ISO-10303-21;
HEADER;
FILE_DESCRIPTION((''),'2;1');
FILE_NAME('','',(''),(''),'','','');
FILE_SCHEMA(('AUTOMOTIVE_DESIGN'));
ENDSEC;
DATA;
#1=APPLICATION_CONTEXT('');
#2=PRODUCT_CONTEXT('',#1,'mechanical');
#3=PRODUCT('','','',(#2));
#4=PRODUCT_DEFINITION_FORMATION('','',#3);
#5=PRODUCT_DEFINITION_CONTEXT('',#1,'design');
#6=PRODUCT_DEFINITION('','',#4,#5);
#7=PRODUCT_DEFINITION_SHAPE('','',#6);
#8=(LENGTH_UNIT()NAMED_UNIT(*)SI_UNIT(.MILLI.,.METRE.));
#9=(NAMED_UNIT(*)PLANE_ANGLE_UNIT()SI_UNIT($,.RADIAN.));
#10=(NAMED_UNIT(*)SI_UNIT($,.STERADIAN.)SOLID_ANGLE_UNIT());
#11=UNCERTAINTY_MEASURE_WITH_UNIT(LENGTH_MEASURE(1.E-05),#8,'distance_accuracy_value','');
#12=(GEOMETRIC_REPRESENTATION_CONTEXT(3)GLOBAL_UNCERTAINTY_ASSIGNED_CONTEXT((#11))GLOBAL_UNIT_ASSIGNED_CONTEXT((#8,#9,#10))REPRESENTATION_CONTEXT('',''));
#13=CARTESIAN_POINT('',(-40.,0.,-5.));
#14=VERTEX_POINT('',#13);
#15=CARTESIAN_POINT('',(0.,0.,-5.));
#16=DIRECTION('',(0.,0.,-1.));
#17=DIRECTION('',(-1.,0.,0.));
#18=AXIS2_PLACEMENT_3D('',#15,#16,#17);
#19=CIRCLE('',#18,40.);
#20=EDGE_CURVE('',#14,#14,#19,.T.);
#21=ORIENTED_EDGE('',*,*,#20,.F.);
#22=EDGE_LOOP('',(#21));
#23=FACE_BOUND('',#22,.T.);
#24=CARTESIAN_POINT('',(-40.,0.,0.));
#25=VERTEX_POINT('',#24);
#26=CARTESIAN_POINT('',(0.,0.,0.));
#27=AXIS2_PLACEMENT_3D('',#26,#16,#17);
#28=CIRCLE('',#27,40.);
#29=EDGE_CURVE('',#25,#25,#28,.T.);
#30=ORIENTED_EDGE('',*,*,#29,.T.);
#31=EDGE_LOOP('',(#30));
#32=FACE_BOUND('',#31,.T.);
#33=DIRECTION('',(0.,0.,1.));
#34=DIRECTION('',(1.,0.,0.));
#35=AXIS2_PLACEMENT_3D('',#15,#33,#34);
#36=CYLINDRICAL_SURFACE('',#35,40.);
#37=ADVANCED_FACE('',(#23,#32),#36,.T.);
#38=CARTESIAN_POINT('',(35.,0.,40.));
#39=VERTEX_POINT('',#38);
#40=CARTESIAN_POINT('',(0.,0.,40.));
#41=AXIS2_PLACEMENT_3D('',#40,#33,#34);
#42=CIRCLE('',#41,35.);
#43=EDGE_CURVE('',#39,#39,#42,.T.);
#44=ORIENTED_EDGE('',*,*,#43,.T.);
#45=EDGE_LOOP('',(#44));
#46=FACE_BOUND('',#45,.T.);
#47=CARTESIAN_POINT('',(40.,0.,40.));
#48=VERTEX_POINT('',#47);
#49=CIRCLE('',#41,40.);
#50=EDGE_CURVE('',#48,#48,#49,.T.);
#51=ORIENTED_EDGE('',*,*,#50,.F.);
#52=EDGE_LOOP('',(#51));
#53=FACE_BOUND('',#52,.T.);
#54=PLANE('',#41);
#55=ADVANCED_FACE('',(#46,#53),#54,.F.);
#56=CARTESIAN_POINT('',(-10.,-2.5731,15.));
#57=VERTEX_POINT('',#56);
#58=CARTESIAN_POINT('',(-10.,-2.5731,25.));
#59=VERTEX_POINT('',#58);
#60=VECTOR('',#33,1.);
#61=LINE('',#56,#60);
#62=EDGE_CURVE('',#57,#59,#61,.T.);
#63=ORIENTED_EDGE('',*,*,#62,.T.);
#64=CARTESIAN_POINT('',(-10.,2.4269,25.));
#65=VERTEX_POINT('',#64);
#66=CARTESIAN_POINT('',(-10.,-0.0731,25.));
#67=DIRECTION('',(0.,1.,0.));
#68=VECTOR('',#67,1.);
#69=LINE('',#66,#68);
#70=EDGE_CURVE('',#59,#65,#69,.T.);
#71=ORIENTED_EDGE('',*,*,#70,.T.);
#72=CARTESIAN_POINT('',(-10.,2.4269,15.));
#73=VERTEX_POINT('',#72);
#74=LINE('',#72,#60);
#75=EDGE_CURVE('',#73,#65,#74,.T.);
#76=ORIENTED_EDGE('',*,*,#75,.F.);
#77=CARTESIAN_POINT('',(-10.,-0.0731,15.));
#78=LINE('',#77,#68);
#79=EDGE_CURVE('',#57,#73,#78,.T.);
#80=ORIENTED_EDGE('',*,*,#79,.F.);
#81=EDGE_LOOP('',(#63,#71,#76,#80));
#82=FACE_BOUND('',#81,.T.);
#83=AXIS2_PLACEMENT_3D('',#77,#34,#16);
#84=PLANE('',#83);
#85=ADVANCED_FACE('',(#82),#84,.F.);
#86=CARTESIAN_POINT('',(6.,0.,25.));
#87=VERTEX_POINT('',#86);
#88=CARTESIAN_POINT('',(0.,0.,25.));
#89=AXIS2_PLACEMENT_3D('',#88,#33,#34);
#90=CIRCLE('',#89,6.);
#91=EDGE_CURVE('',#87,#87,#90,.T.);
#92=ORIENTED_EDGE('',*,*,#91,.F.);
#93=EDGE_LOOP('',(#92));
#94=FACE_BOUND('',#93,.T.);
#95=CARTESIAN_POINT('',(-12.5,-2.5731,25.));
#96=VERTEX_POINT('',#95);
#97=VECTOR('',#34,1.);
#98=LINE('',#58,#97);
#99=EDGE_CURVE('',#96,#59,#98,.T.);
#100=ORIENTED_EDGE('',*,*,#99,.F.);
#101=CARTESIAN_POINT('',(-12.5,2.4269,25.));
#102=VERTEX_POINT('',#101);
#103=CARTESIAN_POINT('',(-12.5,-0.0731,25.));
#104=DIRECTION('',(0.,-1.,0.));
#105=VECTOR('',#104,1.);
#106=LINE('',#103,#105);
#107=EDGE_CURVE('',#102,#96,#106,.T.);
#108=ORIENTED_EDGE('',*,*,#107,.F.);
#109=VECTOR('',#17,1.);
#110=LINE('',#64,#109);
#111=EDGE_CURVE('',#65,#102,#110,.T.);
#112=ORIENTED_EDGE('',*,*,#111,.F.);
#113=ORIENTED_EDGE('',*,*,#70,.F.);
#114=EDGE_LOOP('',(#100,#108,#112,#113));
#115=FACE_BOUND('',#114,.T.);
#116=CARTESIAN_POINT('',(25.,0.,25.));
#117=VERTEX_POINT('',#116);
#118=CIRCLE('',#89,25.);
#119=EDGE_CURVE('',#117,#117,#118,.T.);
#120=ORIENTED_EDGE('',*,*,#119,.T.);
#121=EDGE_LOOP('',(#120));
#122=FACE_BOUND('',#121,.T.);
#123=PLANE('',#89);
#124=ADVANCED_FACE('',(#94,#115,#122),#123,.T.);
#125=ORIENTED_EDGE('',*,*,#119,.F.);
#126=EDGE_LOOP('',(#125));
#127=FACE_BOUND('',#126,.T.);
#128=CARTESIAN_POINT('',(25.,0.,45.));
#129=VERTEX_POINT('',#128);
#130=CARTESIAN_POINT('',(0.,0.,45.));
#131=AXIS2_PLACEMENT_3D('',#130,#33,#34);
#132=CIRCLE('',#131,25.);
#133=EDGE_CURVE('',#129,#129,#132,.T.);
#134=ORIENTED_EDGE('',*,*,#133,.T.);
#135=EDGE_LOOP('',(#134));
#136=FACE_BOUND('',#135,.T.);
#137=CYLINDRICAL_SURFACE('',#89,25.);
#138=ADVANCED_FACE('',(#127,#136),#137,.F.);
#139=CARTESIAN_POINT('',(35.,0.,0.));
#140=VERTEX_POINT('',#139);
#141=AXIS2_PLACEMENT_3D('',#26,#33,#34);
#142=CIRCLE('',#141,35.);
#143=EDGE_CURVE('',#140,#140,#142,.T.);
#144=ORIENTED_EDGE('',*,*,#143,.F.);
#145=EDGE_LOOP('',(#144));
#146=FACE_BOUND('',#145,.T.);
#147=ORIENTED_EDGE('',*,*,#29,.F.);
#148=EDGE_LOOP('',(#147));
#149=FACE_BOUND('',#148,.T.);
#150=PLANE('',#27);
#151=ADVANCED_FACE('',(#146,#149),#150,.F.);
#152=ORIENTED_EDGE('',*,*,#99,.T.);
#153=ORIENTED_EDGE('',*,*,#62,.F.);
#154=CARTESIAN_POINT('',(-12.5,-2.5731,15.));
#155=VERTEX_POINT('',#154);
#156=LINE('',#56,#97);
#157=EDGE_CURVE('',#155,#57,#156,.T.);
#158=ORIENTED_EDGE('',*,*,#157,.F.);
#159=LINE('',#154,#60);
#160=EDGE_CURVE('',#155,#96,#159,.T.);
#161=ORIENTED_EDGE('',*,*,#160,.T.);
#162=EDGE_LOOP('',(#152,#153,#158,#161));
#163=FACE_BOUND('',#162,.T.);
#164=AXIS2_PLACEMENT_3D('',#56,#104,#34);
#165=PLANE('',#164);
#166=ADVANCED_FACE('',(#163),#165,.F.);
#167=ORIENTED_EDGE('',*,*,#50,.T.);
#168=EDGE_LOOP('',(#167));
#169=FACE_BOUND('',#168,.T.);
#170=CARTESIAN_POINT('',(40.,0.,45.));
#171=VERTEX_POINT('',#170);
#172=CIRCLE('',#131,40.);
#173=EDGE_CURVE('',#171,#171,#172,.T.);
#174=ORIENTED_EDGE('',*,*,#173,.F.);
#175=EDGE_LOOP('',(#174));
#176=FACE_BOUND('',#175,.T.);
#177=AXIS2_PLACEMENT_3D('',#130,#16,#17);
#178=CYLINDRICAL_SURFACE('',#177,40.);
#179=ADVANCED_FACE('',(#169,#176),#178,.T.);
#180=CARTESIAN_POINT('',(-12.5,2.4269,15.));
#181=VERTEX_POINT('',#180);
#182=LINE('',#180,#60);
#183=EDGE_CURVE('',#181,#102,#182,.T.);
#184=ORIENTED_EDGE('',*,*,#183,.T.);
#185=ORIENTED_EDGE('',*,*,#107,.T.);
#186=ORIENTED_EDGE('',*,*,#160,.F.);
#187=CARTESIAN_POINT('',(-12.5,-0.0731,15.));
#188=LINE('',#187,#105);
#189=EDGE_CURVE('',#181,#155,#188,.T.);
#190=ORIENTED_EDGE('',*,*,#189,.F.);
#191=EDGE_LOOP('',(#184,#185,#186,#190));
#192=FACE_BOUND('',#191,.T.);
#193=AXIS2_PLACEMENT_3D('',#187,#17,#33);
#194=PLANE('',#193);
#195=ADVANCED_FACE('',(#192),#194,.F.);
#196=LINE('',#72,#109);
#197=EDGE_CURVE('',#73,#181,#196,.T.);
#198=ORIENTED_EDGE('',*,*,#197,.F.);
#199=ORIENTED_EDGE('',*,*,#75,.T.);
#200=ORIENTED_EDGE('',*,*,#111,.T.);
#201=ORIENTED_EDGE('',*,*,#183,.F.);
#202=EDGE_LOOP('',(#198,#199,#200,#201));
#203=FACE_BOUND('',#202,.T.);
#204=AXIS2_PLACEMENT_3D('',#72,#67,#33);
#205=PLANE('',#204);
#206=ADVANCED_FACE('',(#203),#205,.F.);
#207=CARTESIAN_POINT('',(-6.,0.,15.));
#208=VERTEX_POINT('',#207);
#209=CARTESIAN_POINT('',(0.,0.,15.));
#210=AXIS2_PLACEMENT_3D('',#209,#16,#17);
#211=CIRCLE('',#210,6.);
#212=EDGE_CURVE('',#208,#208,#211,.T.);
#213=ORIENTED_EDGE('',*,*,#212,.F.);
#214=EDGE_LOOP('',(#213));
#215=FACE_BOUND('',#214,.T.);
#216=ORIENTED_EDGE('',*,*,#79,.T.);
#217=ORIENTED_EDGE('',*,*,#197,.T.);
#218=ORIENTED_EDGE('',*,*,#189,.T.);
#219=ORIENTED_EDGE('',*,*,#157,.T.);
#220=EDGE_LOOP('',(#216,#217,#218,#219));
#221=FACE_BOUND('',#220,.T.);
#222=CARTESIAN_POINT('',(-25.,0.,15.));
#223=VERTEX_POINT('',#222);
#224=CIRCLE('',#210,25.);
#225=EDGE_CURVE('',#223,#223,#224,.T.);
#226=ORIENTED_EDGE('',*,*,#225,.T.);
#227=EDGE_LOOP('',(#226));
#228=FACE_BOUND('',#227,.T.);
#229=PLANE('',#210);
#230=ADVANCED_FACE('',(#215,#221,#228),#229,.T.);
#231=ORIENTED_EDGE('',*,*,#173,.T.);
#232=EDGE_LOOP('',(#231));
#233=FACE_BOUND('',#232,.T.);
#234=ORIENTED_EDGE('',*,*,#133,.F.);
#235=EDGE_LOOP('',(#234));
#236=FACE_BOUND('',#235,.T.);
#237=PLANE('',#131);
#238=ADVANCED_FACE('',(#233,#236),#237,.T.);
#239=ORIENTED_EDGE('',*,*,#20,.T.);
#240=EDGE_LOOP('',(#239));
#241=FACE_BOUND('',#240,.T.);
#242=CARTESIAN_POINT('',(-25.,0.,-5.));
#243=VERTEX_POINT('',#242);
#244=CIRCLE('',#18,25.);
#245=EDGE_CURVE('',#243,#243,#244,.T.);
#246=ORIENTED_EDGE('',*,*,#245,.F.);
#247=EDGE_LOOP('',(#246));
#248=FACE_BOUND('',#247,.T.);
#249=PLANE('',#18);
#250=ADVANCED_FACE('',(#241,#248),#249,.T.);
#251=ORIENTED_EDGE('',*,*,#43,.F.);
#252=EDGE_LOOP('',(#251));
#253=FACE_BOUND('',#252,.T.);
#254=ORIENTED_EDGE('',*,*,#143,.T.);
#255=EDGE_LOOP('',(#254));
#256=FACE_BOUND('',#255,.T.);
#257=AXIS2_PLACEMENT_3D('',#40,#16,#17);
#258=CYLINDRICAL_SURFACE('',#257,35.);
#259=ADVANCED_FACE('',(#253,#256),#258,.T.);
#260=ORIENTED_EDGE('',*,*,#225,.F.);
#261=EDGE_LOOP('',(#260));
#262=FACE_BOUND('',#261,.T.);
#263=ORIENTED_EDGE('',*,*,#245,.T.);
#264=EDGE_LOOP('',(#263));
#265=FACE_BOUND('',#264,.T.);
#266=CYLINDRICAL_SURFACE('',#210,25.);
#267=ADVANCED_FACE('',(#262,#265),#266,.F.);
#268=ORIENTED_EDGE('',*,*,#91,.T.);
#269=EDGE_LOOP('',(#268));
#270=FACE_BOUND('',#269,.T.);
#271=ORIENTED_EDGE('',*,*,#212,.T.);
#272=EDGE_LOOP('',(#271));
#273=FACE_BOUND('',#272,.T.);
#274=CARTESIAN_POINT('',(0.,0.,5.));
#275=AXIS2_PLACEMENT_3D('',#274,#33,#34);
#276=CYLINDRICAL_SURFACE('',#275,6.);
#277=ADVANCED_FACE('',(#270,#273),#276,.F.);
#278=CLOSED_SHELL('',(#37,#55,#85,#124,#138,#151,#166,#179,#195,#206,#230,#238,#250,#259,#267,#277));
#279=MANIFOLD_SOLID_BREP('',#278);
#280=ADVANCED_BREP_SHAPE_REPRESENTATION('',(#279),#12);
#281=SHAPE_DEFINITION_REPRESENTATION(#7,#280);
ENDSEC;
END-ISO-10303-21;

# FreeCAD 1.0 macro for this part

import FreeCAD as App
import Part
import Sketcher

V = App.Vector


def add_polygon(sketch, points):
    """Adds a closed chain of lines whose ends are joined by coincident constraints."""
    first, n = sketch.GeometryCount, len(points)
    for a, b in zip(points, points[1:] + points[:1]):
        sketch.addGeometry(Part.LineSegment(App.Vector(*a, 0), App.Vector(*b, 0)), False)
    for i in range(n):
        sketch.addConstraint(Sketcher.Constraint("Coincident", first + i, 2, first + (i + 1) % n, 1))

doc = App.newDocument("Part")
body = doc.addObject("PartDesign::Body", "Body")

# Sketch on XY plane
sketch1 = body.newObject("Sketcher::SketchObject", "Sketch")
sketch1.AttachmentSupport = (doc.getObject("XY_Plane"), [""])
sketch1.MapMode = "FlatFace"
sketch1.addGeometry(Part.Circle(V(0, 0, 0), V(0, 0, 1), 35), False)
sketch1.addConstraint([
    Sketcher.Constraint("Coincident", 0, 3, -1, 1),
    Sketcher.Constraint("Diameter", 0, 70.0),
])
pad1 = body.newObject("PartDesign::Pad", "Pad")
pad1.Profile = sketch1
pad1.Length = 40

# Sketch on XY plane
sketch2 = body.newObject("Sketcher::SketchObject", "Sketch001")
sketch2.AttachmentSupport = (doc.getObject("XY_Plane"), [""])
sketch2.MapMode = "FlatFace"
sketch2.AttachmentOffset = App.Placement(V(0, 0, 40), App.Rotation())
sketch2.addGeometry(Part.Circle(V(0, 0, 0), V(0, 0, 1), 40), False)
sketch2.addConstraint([
    Sketcher.Constraint("Coincident", 0, 3, -1, 1),
    Sketcher.Constraint("Diameter", 0, 80.0),
])
pad2 = body.newObject("PartDesign::Pad", "Pad001")
pad2.Profile = sketch2
pad2.Length = 5

# Sketch on XY plane
sketch3 = body.newObject("Sketcher::SketchObject", "Sketch002")
sketch3.AttachmentSupport = (doc.getObject("XY_Plane"), [""])
sketch3.MapMode = "FlatFace"
sketch3.AttachmentOffset = App.Placement(V(0, 0, -5), App.Rotation())
sketch3.addGeometry(Part.Circle(V(0, 0, 0), V(0, 0, 1), 40), False)
sketch3.addConstraint([
    Sketcher.Constraint("Coincident", 0, 3, -1, 1),
    Sketcher.Constraint("Diameter", 0, 80.0),
])
pad3 = body.newObject("PartDesign::Pad", "Pad002")
pad3.Profile = sketch3
pad3.Length = 5

# Sketch on XY plane
sketch4 = body.newObject("Sketcher::SketchObject", "Sketch003")
sketch4.AttachmentSupport = (doc.getObject("XY_Plane"), [""])
sketch4.MapMode = "FlatFace"
sketch4.AttachmentOffset = App.Placement(V(0, 0, 45), App.Rotation())
sketch4.addGeometry(Part.Circle(V(0, 0, 0), V(0, 0, 1), 25), False)
sketch4.addConstraint([
    Sketcher.Constraint("Coincident", 0, 3, -1, 1),
    Sketcher.Constraint("Diameter", 0, 50.0),
])
pocket1 = body.newObject("PartDesign::Pocket", "Pocket")
pocket1.Profile = sketch4
pocket1.Length = 20

# Sketch on XY plane
sketch5 = body.newObject("Sketcher::SketchObject", "Sketch004")
sketch5.AttachmentSupport = (doc.getObject("XY_Plane"), [""])
sketch5.MapMode = "FlatFace"
sketch5.AttachmentOffset = App.Placement(V(0, 0, 15), App.Rotation())
sketch5.addGeometry(Part.Circle(V(0, 0, 0), V(0, 0, 1), 25), False)
sketch5.addConstraint([
    Sketcher.Constraint("Coincident", 0, 3, -1, 1),
    Sketcher.Constraint("Diameter", 0, 50.0),
])
pocket2 = body.newObject("PartDesign::Pocket", "Pocket001")
pocket2.Profile = sketch5
pocket2.Length = 20

# Sketch on XY plane
sketch6 = body.newObject("Sketcher::SketchObject", "Sketch005")
sketch6.AttachmentSupport = (doc.getObject("XY_Plane"), [""])
sketch6.MapMode = "FlatFace"
sketch6.AttachmentOffset = App.Placement(V(0, 0, 25), App.Rotation())
sketch6.addGeometry(Part.Circle(V(0, 0, 0), V(0, 0, 1), 6), False)
sketch6.addConstraint([
    Sketcher.Constraint("Coincident", 0, 3, -1, 1),
    Sketcher.Constraint("Diameter", 0, 12.0),
])
pocket3 = body.newObject("PartDesign::Pocket", "Pocket002")
pocket3.Profile = sketch6
pocket3.Length = 20

# Sketch on XY plane
sketch7 = body.newObject("Sketcher::SketchObject", "Sketch006")
sketch7.AttachmentSupport = (doc.getObject("XY_Plane"), [""])
sketch7.MapMode = "FlatFace"
sketch7.AttachmentOffset = App.Placement(V(0, 0, 25), App.Rotation())
add_polygon(sketch7, [(-10, -2.5731), (-10, 2.4269), (-12.5, 2.4269), (-12.5, -2.5731)])  # lines 0-3
sketch7.addConstraint([
    Sketcher.Constraint("Vertical", 0),
    Sketcher.Constraint("Horizontal", 1),
    Sketcher.Constraint("Vertical", 2),
    Sketcher.Constraint("Horizontal", 3),
    Sketcher.Constraint("DistanceY", 0, 1, 0, 2, 5.0),
    Sketcher.Constraint("DistanceX", 1, 2, 1, 1, 2.5),
    Sketcher.Constraint("DistanceX", 0, 2, -1, 1, 10.0),
    Sketcher.Constraint("DistanceY", -1, 1, 0, 2, 2.4269),
])
pocket4 = body.newObject("PartDesign::Pocket", "Pocket003")
pocket4.Profile = sketch7
pocket4.Length = 10

doc.recompute()
